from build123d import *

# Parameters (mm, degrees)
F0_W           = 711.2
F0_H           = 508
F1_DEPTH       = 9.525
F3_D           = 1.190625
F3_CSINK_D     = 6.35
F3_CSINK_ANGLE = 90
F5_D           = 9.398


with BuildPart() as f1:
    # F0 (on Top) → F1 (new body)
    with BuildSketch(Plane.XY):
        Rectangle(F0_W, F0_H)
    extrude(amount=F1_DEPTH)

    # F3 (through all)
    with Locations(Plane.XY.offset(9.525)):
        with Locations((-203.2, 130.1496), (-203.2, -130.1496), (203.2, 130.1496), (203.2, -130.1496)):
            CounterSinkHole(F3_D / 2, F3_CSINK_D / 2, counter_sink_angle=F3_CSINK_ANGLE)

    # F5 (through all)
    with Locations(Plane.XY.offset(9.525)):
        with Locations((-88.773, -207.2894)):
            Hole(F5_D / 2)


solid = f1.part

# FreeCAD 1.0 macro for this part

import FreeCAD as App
import Part
import Sketcher
from FreeCAD import Vector
Q = App.Units.Quantity


def add_polygon(sketch, points):
    """Adds a closed chain of lines whose ends are joined by coincident constraints."""
    first, n = sketch.GeometryCount, len(points)
    for a, b in zip(points, points[1:] + points[:1]):
        sketch.addGeometry(Part.LineSegment(App.Vector(*a, 0), App.Vector(*b, 0)), False)
    for i in range(n):
        sketch.addConstraint(Sketcher.Constraint("Coincident", first + i, 2, first + (i + 1) % n, 1))

doc = App.newDocument("Part")
params = doc.addObject("Spreadsheet::Sheet", "Params")
for row, (alias, value) in enumerate([
    ("sketch1_width", "28 in"),
    ("sketch1_height", "20 in"),
    ("pad1_length", "0.375 in"),
    ("sketch2_diameter", "0.046875 in"),
    ("hole_diameter", "0.046875 in"),
    ("hole_csink_diameter", "0.25 in"),
    ("sketch3_diameter", "0.37 in"),
    ("hole2_diameter", "0.37 in"),
], start=1):
    params.set(f"A{row}", alias)
    params.set(f"B{row}", "=" + value)
    params.setAlias(f"B{row}", alias)

body = doc.addObject("PartDesign::Body", "Body")

sketch1 = body.newObject("Sketcher::SketchObject", "Sketch")
sketch1.AttachmentSupport = (doc.getObject("XY_Plane"), [""])
sketch1.MapMode = "FlatFace"
add_polygon(sketch1, [(-356, 254), (-356, -254), (356, -254), (356, 254)])
sketch1.addConstraint([
    Sketcher.Constraint("Vertical", 0),
    Sketcher.Constraint("Horizontal", 1),
    Sketcher.Constraint("Vertical", 2),
    Sketcher.Constraint("Horizontal", 3),
    Sketcher.Constraint("Symmetric", 0, 2, 2, 2, -1, 1),
    Sketcher.Constraint("DistanceX", 1, 1, 1, 2, Q("28 in")),
    Sketcher.Constraint("DistanceY", 0, 2, 0, 1, Q("20 in")),
])
sketch1.setExpression("Constraints[9]", "Params.sketch1_width")
sketch1.setExpression("Constraints[10]", "Params.sketch1_height")
pad1 = body.newObject("PartDesign::Pad", "Pad")
pad1.Profile = sketch1
pad1.setExpression("Length", "Params.pad1_length")

sketch2 = body.newObject("Sketcher::SketchObject", "Sketch001")
sketch2.AttachmentSupport = (doc.getObject("XY_Plane"), [""])
sketch2.MapMode = "FlatFace"
sketch2.AttachmentOffset = App.Placement(Vector(0, 0, 0.375 * 25.4), App.Rotation())
sketch2.addGeometry([
    Part.Circle(Vector(-203.2, 130.1, 0), Vector(0, 0, 1), 0.6),
    Part.Circle(Vector(-203.2, -130.1, 0), Vector(0, 0, 1), 0.6),
    Part.Circle(Vector(203.2, 130.1, 0), Vector(0, 0, 1), 0.6),
    Part.Circle(Vector(203.2, -130.1, 0), Vector(0, 0, 1), 0.6),
], False)
sketch2.addConstraint([
    Sketcher.Constraint("Equal", 0, 1),
    Sketcher.Constraint("Equal", 1, 2),
    Sketcher.Constraint("Equal", 2, 3),
    Sketcher.Constraint("Symmetric", 1, 3, 2, 3, -1, 1),
    Sketcher.Constraint("Symmetric", 0, 3, 3, 3, -1, 1),
    Sketcher.Constraint("Symmetric", 0, 3, 2, 3, -2),
    Sketcher.Constraint("Diameter", 0, Q("0.046875 in")),
    Sketcher.Constraint("DistanceX", 0, 3, -1, 1, Q("8 in")),
    Sketcher.Constraint("DistanceY", -1, 1, 0, 3, Q("5.124 in")),
])
sketch2.setExpression("Constraints[6]", "Params.sketch2_diameter")
doc.recompute()
hole = body.newObject("PartDesign::Hole", "Hole")
hole.Profile = sketch2
hole.ThreadType = "None"
hole.setExpression("Diameter", "Params.hole_diameter")
hole.DepthType = "ThroughAll"
hole.HoleCutType = "Countersink"
hole.setExpression("HoleCutDiameter", "Params.hole_csink_diameter")
hole.HoleCutCountersinkAngle = 90

sketch3 = body.newObject("Sketcher::SketchObject", "Sketch002")
sketch3.AttachmentSupport = (doc.getObject("XY_Plane"), [""])
sketch3.MapMode = "FlatFace"
sketch3.AttachmentOffset = App.Placement(Vector(0, 0, 0.375 * 25.4), App.Rotation())
sketch3.addGeometry(Part.Circle(Vector(-88.8, -207.3, 0), Vector(0, 0, 1), 4.7), False)
sketch3.addConstraint([
    Sketcher.Constraint("Diameter", 0, Q("0.37 in")),
    Sketcher.Constraint("DistanceX", 0, 3, -1, 1, Q("3.495 in")),
    Sketcher.Constraint("DistanceY", 0, 3, -1, 1, Q("8.161 in")),
])
sketch3.setExpression("Constraints[0]", "Params.sketch3_diameter")
doc.recompute()
hole2 = body.newObject("PartDesign::Hole", "Hole001")
hole2.Profile = sketch3
hole2.ThreadType = "None"
hole2.setExpression("Diameter", "Params.hole2_diameter")
hole2.DepthType = "ThroughAll"

doc.recompute()
